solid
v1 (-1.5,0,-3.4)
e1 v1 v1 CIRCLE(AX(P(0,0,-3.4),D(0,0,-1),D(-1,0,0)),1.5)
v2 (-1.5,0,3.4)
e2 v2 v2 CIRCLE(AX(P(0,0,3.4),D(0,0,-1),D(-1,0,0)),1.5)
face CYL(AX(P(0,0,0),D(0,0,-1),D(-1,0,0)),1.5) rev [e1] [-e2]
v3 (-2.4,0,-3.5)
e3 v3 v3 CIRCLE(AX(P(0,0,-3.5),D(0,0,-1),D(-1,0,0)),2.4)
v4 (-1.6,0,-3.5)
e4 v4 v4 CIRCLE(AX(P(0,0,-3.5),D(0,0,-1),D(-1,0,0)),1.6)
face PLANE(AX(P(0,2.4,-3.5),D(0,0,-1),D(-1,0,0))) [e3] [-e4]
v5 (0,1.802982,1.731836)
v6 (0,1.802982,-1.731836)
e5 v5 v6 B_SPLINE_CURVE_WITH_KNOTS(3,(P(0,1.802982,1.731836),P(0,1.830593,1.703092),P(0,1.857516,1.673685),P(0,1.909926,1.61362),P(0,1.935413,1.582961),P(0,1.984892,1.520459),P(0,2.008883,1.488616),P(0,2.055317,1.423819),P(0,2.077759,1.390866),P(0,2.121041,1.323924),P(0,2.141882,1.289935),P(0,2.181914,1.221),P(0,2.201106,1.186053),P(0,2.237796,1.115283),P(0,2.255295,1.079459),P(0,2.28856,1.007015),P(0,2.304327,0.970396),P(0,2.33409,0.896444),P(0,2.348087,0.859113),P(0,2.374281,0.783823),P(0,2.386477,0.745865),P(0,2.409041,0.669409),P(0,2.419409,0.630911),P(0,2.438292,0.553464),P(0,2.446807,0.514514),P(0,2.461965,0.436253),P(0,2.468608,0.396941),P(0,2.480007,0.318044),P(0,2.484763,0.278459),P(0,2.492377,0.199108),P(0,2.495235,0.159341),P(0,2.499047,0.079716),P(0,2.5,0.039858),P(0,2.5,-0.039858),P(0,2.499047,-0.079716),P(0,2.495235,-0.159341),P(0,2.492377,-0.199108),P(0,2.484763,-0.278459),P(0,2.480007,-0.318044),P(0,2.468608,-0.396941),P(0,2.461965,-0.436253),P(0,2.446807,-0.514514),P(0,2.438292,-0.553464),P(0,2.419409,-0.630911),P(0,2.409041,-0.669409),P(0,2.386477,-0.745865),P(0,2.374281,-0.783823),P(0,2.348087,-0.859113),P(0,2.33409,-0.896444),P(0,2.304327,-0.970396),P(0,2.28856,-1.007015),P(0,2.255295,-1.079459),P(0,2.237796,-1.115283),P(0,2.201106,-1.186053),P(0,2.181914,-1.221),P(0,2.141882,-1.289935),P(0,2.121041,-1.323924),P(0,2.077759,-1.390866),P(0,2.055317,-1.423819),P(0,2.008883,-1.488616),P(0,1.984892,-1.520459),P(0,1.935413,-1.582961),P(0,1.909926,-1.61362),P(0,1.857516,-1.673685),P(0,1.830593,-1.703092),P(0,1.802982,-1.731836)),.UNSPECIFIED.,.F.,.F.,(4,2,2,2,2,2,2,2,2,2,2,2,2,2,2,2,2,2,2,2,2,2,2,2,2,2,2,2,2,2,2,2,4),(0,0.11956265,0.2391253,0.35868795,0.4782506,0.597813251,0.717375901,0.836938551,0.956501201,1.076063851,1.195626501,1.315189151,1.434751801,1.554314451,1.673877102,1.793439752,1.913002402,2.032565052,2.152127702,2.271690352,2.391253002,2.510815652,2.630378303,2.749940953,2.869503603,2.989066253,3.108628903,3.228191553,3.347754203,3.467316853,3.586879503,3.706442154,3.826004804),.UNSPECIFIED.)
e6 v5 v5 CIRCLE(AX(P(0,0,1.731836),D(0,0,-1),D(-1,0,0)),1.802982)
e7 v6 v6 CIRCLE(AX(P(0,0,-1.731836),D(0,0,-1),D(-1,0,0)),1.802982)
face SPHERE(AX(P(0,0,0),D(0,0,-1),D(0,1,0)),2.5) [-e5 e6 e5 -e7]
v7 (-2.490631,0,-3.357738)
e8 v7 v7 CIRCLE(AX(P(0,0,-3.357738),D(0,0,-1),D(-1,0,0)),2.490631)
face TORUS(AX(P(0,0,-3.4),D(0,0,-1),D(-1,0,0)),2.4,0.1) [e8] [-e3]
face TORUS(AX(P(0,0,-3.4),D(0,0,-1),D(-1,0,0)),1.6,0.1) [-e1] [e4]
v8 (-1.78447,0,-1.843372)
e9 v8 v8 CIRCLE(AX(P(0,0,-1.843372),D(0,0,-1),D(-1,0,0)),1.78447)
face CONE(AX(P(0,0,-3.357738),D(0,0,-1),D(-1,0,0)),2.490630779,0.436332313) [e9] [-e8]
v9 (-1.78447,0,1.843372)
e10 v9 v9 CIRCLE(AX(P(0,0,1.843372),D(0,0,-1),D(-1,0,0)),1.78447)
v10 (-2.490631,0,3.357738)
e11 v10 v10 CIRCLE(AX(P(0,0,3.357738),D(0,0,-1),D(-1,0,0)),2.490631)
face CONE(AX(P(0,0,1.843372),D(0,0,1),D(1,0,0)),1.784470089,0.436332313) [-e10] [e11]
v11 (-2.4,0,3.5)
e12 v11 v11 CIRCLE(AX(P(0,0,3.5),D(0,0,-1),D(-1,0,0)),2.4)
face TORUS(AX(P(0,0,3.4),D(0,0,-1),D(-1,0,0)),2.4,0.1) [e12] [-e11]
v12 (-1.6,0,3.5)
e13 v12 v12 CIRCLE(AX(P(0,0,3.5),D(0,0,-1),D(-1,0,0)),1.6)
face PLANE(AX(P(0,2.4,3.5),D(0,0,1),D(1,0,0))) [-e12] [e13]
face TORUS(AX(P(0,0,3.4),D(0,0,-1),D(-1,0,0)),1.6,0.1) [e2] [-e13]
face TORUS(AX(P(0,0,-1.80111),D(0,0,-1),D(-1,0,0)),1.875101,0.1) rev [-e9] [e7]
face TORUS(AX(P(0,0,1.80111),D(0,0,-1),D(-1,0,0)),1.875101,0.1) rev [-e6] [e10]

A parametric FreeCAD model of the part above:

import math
import FreeCAD as App
import Part
import Sketcher

V = App.Vector
Q = App.Units.Quantity

doc = App.newDocument("Part")
body = doc.addObject("PartDesign::Body", "Body")

sketch1 = body.newObject("Sketcher::SketchObject", "Sketch")
sketch1.AttachmentSupport = (doc.getObject("YZ_Plane"), [""])
sketch1.MapMode = "FlatFace"
sketch1.addGeometry(Part.LineSegment(V(2.4, 3.5, 0), V(1.6, 3.5, 0)), False)
sketch1.addGeometry(Part.ArcOfCircle(Part.Circle(V(1.6, 3.4, 0), V(0, 0, 1), 0.1), math.radians(90), math.radians(180)), False)
sketch1.addGeometry(Part.LineSegment(V(1.5, 3.4, 0), V(1.5, -3.4, 0)), False)
sketch1.addGeometry(Part.ArcOfCircle(Part.Circle(V(1.6, -3.4, 0), V(0, 0, 1), 0.1), math.radians(180), math.radians(270)), False)
sketch1.addGeometry(Part.LineSegment(V(1.6, -3.5, 0), V(2.4, -3.5, 0)), False)
sketch1.addGeometry(Part.ArcOfCircle(Part.Circle(V(2.4, -3.4, 0), V(0, 0, 1), 0.1), math.radians(-90.000001), math.radians(25)), False)
sketch1.addGeometry(Part.LineSegment(V(2.490631, -3.357738, 0), V(1.78447, -1.843372, 0)), False)
sketch1.addGeometry(Part.ArcOfCircle(Part.Circle(V(1.875101, -1.80111, 0), V(0, 0, 1), 0.1), math.radians(136.153035), math.radians(205)), False)
sketch1.addGeometry(Part.ArcOfCircle(Part.Circle(V(0, 0, 0), V(0, 0, 1), 2.5), math.radians(-43.846965), math.radians(43.846965)), False)
sketch1.addGeometry(Part.ArcOfCircle(Part.Circle(V(1.875101, 1.80111, 0), V(0, 0, 1), 0.1), math.radians(155), math.radians(223.846965)), False)
sketch1.addGeometry(Part.LineSegment(V(1.78447, 1.843372, 0), V(2.490631, 3.357738, 0)), False)
sketch1.addGeometry(Part.ArcOfCircle(Part.Circle(V(2.4, 3.4, 0), V(0, 0, 1), 0.1), math.radians(-25), math.radians(90.000001)), False)
sketch1.addConstraint(Sketcher.Constraint("Tangent", 0, 2, 1, 1))
sketch1.addConstraint(Sketcher.Constraint("Tangent", 1, 2, 2, 1))
sketch1.addConstraint(Sketcher.Constraint("Tangent", 2, 2, 3, 1))
sketch1.addConstraint(Sketcher.Constraint("Tangent", 3, 2, 4, 1))
sketch1.addConstraint(Sketcher.Constraint("Tangent", 4, 2, 5, 1))
sketch1.addConstraint(Sketcher.Constraint("Tangent", 5, 2, 6, 1))
sketch1.addConstraint(Sketcher.Constraint("Tangent", 6, 2, 7, 2))
sketch1.addConstraint(Sketcher.Constraint("Tangent", 7, 1, 8, 1))
sketch1.addConstraint(Sketcher.Constraint("Tangent", 8, 2, 9, 2))
sketch1.addConstraint(Sketcher.Constraint("Tangent", 9, 1, 10, 1))
sketch1.addConstraint(Sketcher.Constraint("Tangent", 10, 2, 11, 1))
sketch1.addConstraint(Sketcher.Constraint("Tangent", 11, 2, 0, 1))
sketch1.addConstraint(Sketcher.Constraint("Horizontal", 0))
sketch1.addConstraint(Sketcher.Constraint("Vertical", 2))
sketch1.addConstraint(Sketcher.Constraint("Horizontal", 4))
sketch1.addConstraint(Sketcher.Constraint("Coincident", 8, 3, -1, 1))
sketch1.addConstraint(Sketcher.Constraint("Equal", 1, 3))
sketch1.addConstraint(Sketcher.Constraint("Equal", 3, 5))
sketch1.addConstraint(Sketcher.Constraint("Equal", 5, 7))
sketch1.addConstraint(Sketcher.Constraint("Equal", 7, 9))
sketch1.addConstraint(Sketcher.Constraint("Equal", 9, 11))
sketch1.addConstraint(Sketcher.Constraint("Symmetric", 5, 3, 11, 3, -1))
sketch1.addConstraint(Sketcher.Constraint("Vertical", 7, 3, 9, 3))
sketch1.addConstraint(Sketcher.Constraint("Radius", 1, 0.1))
sketch1.addConstraint(Sketcher.Constraint("Radius", 8, 2.5))
sketch1.addConstraint(Sketcher.Constraint("Angle", 6, Q("115 deg")))
sketch1.addConstraint(Sketcher.Constraint("DistanceX", 0, 2, 0, 1, 0.8))
sketch1.addConstraint(Sketcher.Constraint("DistanceY", 2, 2, 2, 1, 6.8))
sketch1.addConstraint(Sketcher.Constraint("DistanceX", -1, 1, 1, 3, 1.6))
revolution = body.newObject("PartDesign::Revolution", "Revolution")
revolution.Profile = sketch1
revolution.ReferenceAxis = (sketch1, ["V_Axis"])
revolution.Angle = 360

doc.recompute()
